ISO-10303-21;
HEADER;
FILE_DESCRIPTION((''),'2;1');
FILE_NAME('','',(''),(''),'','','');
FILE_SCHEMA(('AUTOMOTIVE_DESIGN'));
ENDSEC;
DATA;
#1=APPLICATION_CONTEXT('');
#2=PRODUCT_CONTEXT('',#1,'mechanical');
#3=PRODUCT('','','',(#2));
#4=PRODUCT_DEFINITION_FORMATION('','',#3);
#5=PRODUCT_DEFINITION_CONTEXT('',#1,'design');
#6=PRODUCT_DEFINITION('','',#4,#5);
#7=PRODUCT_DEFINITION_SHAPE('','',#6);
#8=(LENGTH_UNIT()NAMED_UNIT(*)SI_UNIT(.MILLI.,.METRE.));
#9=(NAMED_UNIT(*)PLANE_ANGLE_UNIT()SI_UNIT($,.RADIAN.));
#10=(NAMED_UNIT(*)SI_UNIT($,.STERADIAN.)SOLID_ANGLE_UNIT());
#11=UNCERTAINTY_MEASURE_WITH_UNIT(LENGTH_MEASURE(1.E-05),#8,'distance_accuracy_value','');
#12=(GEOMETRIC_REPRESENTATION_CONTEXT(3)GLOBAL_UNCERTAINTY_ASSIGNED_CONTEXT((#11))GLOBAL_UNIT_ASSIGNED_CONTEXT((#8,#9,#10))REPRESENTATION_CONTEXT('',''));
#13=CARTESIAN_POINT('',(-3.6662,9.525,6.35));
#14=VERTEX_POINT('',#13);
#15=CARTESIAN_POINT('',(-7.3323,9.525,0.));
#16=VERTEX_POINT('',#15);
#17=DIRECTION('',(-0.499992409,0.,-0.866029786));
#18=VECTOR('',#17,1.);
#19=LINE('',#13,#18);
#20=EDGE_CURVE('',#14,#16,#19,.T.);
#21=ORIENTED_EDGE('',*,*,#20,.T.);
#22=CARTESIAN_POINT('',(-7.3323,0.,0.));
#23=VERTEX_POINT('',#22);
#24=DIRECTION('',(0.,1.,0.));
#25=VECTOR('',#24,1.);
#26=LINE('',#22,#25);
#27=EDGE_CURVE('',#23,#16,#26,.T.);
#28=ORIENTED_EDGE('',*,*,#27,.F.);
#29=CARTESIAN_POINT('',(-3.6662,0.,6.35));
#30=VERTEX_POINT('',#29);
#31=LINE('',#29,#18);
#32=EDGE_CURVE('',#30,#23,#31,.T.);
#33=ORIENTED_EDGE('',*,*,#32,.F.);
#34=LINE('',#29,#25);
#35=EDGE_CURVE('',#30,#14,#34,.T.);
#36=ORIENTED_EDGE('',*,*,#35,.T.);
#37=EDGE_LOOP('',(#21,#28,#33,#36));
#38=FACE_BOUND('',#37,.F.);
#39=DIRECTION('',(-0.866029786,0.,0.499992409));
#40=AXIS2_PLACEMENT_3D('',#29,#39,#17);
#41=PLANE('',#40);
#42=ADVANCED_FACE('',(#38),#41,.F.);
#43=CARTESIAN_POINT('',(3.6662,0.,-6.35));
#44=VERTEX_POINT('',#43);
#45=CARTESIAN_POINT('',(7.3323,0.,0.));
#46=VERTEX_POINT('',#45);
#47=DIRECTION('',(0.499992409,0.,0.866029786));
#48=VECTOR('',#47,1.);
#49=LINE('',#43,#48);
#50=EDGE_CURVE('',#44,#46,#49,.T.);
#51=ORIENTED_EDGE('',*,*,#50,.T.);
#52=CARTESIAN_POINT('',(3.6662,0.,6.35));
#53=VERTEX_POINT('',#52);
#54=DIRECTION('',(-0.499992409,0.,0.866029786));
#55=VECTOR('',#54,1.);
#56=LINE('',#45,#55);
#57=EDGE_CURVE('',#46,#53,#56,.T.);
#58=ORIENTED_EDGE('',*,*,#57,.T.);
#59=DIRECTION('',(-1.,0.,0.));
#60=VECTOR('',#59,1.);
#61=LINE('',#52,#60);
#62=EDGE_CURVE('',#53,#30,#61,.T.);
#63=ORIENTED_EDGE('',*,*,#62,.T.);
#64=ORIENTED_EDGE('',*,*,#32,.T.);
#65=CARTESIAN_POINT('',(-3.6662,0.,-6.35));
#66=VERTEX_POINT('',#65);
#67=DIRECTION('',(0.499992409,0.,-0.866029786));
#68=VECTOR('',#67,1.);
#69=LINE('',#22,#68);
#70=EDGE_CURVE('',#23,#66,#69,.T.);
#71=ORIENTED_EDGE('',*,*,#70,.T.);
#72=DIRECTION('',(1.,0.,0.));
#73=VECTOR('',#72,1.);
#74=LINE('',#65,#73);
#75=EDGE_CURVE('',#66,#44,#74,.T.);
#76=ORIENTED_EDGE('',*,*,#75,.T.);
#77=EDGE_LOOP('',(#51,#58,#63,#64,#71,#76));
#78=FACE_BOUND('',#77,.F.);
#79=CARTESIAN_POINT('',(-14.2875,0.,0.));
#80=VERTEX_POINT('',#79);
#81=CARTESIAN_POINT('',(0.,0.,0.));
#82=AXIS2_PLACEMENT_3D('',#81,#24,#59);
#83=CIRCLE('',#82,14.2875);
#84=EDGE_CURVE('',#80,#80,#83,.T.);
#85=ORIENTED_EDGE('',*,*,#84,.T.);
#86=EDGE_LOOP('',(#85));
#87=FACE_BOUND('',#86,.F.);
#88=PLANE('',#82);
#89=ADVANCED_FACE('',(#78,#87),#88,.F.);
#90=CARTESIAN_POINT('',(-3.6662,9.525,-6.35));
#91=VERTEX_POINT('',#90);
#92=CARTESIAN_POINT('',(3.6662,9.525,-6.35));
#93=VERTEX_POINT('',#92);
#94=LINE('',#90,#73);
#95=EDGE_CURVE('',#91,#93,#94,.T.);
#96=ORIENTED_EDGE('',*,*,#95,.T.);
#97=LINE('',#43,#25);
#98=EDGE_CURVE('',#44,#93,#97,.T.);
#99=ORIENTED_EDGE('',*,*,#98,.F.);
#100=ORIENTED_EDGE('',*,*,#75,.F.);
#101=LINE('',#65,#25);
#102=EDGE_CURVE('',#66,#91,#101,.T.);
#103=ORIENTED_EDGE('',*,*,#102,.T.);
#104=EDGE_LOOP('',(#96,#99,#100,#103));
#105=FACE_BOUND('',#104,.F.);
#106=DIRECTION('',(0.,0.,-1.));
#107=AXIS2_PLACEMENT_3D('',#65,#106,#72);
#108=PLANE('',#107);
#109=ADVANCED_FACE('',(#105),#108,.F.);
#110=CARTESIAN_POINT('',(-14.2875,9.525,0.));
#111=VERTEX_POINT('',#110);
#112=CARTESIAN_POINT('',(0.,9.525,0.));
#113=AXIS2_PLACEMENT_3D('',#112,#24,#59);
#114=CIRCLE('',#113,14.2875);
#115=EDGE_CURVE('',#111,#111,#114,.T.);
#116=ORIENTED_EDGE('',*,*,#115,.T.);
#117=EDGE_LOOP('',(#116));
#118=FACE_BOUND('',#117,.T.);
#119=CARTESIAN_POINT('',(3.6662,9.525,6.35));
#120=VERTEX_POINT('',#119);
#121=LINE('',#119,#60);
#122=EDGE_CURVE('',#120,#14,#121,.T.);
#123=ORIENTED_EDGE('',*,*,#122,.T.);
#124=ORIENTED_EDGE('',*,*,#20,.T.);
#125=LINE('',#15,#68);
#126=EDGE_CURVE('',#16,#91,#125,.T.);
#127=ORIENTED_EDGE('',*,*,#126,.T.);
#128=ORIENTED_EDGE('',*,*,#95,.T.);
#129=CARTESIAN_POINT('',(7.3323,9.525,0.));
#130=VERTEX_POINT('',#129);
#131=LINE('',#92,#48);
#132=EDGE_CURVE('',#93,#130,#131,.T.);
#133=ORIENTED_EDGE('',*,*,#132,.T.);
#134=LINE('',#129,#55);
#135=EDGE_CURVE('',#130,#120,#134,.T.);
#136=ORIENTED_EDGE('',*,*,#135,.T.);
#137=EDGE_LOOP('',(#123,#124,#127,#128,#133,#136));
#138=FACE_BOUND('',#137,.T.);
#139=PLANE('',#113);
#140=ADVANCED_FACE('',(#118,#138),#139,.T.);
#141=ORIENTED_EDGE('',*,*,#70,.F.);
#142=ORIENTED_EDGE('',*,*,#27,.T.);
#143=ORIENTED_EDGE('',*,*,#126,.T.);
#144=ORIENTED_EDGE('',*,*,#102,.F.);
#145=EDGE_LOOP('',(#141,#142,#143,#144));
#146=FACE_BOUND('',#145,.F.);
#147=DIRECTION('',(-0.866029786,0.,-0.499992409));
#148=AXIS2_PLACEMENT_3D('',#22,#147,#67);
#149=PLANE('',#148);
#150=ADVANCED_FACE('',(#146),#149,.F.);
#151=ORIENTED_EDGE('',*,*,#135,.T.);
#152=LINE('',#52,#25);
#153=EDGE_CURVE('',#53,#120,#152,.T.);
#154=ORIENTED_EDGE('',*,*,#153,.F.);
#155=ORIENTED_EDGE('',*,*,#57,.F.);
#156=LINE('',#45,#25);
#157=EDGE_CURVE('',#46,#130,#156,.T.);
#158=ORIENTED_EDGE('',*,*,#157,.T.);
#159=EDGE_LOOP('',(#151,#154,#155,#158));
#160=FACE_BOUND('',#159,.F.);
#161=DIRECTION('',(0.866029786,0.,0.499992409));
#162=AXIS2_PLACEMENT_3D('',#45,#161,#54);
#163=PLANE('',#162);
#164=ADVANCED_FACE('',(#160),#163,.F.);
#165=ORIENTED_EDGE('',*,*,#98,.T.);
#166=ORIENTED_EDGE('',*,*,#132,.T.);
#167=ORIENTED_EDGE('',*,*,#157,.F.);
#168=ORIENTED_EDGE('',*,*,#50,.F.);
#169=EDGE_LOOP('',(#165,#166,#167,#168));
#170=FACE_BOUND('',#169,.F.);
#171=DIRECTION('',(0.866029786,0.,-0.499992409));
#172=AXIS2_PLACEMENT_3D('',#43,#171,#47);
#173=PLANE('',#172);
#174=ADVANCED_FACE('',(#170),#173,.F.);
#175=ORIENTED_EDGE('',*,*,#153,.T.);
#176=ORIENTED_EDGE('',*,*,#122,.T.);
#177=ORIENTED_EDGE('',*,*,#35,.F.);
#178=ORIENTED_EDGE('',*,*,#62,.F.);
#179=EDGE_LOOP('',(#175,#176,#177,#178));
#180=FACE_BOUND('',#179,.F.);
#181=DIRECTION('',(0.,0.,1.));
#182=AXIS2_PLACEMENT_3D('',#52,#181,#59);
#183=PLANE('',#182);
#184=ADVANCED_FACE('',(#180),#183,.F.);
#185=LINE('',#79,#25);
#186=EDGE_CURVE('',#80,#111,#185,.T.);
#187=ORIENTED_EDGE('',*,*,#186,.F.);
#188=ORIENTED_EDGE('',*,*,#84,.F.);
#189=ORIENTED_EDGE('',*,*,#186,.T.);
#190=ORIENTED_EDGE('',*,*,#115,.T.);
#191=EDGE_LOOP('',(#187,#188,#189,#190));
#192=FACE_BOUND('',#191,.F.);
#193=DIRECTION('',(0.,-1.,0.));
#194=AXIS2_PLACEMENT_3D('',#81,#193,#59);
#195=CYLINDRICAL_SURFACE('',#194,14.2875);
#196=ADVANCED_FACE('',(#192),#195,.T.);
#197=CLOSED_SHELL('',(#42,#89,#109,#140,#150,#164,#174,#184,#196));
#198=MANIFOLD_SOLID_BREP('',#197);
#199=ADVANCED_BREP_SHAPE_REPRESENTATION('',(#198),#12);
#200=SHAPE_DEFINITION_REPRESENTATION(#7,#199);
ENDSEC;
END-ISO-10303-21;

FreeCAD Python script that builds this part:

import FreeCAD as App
import Part
import Sketcher
Q = App.Units.Quantity

doc = App.newDocument("Part")
body = doc.addObject("PartDesign::Body", "Body")

sketch1 = body.newObject("Sketcher::SketchObject", "Sketch")
sketch1.AttachmentSupport = (doc.getObject("XZ_Plane"), [""])
sketch1.MapMode = "FlatFace"
sketch1.addGeometry(Part.Circle(App.Vector(0, 0, 0), App.Vector(0, 0, 1), 14), False)
sketch1.addGeometry(Part.LineSegment(App.Vector(4, 6, 0), App.Vector(-4, 6, 0)), False)
sketch1.addGeometry(Part.LineSegment(App.Vector(-4, 6, 0), App.Vector(-7, 0, 0)), False)
sketch1.addGeometry(Part.LineSegment(App.Vector(-7, 0, 0), App.Vector(-4, -6, 0)), False)
sketch1.addGeometry(Part.LineSegment(App.Vector(-4, -6, 0), App.Vector(4, -6, 0)), False)
sketch1.addGeometry(Part.LineSegment(App.Vector(4, -6, 0), App.Vector(7, 0, 0)), False)
sketch1.addGeometry(Part.LineSegment(App.Vector(7, 0, 0), App.Vector(4, 6, 0)), False)
sketch1.addConstraint(Sketcher.Constraint("Coincident", 1, 2, 2, 1))
sketch1.addConstraint(Sketcher.Constraint("Coincident", 2, 2, 3, 1))
sketch1.addConstraint(Sketcher.Constraint("Coincident", 3, 2, 4, 1))
sketch1.addConstraint(Sketcher.Constraint("Coincident", 4, 2, 5, 1))
sketch1.addConstraint(Sketcher.Constraint("Coincident", 5, 2, 6, 1))
sketch1.addConstraint(Sketcher.Constraint("Coincident", 6, 2, 1, 1))
sketch1.addConstraint(Sketcher.Constraint("Horizontal", 1))
sketch1.addConstraint(Sketcher.Constraint("Horizontal", 4))
sketch1.addConstraint(Sketcher.Constraint("Coincident", 0, 3, -1, 1))
sketch1.addConstraint(Sketcher.Constraint("Symmetric", 1, 2, 4, 2, -1, 1))
sketch1.addConstraint(Sketcher.Constraint("Symmetric", 2, 2, 5, 2, -1, 1))
sketch1.addConstraint(Sketcher.Constraint("PointOnObject", 2, 2, -1))
sketch1.addConstraint(Sketcher.Constraint("Parallel", 3, 6))
sketch1.addConstraint(Sketcher.Constraint("Vertical", 1, 2, 3, 2))
sketch1.addConstraint(Sketcher.Constraint("Diameter", 0, Q("1.125 in")))
sketch1.addConstraint(Sketcher.Constraint("DistanceY", 3, 2, 1, 2, Q("0.5 in")))
sketch1.addConstraint(Sketcher.Constraint("Angle", 2, Q("-119.9995 deg")))
sketch1.addConstraint(Sketcher.Constraint("DistanceX", 2, 2, 4, 2, Q("0.433 in")))
pad1 = body.newObject("PartDesign::Pad", "Pad")
pad1.Profile = sketch1
pad1.Length = Q("0.375 in")
pad1.Reversed = True

doc.recompute()
